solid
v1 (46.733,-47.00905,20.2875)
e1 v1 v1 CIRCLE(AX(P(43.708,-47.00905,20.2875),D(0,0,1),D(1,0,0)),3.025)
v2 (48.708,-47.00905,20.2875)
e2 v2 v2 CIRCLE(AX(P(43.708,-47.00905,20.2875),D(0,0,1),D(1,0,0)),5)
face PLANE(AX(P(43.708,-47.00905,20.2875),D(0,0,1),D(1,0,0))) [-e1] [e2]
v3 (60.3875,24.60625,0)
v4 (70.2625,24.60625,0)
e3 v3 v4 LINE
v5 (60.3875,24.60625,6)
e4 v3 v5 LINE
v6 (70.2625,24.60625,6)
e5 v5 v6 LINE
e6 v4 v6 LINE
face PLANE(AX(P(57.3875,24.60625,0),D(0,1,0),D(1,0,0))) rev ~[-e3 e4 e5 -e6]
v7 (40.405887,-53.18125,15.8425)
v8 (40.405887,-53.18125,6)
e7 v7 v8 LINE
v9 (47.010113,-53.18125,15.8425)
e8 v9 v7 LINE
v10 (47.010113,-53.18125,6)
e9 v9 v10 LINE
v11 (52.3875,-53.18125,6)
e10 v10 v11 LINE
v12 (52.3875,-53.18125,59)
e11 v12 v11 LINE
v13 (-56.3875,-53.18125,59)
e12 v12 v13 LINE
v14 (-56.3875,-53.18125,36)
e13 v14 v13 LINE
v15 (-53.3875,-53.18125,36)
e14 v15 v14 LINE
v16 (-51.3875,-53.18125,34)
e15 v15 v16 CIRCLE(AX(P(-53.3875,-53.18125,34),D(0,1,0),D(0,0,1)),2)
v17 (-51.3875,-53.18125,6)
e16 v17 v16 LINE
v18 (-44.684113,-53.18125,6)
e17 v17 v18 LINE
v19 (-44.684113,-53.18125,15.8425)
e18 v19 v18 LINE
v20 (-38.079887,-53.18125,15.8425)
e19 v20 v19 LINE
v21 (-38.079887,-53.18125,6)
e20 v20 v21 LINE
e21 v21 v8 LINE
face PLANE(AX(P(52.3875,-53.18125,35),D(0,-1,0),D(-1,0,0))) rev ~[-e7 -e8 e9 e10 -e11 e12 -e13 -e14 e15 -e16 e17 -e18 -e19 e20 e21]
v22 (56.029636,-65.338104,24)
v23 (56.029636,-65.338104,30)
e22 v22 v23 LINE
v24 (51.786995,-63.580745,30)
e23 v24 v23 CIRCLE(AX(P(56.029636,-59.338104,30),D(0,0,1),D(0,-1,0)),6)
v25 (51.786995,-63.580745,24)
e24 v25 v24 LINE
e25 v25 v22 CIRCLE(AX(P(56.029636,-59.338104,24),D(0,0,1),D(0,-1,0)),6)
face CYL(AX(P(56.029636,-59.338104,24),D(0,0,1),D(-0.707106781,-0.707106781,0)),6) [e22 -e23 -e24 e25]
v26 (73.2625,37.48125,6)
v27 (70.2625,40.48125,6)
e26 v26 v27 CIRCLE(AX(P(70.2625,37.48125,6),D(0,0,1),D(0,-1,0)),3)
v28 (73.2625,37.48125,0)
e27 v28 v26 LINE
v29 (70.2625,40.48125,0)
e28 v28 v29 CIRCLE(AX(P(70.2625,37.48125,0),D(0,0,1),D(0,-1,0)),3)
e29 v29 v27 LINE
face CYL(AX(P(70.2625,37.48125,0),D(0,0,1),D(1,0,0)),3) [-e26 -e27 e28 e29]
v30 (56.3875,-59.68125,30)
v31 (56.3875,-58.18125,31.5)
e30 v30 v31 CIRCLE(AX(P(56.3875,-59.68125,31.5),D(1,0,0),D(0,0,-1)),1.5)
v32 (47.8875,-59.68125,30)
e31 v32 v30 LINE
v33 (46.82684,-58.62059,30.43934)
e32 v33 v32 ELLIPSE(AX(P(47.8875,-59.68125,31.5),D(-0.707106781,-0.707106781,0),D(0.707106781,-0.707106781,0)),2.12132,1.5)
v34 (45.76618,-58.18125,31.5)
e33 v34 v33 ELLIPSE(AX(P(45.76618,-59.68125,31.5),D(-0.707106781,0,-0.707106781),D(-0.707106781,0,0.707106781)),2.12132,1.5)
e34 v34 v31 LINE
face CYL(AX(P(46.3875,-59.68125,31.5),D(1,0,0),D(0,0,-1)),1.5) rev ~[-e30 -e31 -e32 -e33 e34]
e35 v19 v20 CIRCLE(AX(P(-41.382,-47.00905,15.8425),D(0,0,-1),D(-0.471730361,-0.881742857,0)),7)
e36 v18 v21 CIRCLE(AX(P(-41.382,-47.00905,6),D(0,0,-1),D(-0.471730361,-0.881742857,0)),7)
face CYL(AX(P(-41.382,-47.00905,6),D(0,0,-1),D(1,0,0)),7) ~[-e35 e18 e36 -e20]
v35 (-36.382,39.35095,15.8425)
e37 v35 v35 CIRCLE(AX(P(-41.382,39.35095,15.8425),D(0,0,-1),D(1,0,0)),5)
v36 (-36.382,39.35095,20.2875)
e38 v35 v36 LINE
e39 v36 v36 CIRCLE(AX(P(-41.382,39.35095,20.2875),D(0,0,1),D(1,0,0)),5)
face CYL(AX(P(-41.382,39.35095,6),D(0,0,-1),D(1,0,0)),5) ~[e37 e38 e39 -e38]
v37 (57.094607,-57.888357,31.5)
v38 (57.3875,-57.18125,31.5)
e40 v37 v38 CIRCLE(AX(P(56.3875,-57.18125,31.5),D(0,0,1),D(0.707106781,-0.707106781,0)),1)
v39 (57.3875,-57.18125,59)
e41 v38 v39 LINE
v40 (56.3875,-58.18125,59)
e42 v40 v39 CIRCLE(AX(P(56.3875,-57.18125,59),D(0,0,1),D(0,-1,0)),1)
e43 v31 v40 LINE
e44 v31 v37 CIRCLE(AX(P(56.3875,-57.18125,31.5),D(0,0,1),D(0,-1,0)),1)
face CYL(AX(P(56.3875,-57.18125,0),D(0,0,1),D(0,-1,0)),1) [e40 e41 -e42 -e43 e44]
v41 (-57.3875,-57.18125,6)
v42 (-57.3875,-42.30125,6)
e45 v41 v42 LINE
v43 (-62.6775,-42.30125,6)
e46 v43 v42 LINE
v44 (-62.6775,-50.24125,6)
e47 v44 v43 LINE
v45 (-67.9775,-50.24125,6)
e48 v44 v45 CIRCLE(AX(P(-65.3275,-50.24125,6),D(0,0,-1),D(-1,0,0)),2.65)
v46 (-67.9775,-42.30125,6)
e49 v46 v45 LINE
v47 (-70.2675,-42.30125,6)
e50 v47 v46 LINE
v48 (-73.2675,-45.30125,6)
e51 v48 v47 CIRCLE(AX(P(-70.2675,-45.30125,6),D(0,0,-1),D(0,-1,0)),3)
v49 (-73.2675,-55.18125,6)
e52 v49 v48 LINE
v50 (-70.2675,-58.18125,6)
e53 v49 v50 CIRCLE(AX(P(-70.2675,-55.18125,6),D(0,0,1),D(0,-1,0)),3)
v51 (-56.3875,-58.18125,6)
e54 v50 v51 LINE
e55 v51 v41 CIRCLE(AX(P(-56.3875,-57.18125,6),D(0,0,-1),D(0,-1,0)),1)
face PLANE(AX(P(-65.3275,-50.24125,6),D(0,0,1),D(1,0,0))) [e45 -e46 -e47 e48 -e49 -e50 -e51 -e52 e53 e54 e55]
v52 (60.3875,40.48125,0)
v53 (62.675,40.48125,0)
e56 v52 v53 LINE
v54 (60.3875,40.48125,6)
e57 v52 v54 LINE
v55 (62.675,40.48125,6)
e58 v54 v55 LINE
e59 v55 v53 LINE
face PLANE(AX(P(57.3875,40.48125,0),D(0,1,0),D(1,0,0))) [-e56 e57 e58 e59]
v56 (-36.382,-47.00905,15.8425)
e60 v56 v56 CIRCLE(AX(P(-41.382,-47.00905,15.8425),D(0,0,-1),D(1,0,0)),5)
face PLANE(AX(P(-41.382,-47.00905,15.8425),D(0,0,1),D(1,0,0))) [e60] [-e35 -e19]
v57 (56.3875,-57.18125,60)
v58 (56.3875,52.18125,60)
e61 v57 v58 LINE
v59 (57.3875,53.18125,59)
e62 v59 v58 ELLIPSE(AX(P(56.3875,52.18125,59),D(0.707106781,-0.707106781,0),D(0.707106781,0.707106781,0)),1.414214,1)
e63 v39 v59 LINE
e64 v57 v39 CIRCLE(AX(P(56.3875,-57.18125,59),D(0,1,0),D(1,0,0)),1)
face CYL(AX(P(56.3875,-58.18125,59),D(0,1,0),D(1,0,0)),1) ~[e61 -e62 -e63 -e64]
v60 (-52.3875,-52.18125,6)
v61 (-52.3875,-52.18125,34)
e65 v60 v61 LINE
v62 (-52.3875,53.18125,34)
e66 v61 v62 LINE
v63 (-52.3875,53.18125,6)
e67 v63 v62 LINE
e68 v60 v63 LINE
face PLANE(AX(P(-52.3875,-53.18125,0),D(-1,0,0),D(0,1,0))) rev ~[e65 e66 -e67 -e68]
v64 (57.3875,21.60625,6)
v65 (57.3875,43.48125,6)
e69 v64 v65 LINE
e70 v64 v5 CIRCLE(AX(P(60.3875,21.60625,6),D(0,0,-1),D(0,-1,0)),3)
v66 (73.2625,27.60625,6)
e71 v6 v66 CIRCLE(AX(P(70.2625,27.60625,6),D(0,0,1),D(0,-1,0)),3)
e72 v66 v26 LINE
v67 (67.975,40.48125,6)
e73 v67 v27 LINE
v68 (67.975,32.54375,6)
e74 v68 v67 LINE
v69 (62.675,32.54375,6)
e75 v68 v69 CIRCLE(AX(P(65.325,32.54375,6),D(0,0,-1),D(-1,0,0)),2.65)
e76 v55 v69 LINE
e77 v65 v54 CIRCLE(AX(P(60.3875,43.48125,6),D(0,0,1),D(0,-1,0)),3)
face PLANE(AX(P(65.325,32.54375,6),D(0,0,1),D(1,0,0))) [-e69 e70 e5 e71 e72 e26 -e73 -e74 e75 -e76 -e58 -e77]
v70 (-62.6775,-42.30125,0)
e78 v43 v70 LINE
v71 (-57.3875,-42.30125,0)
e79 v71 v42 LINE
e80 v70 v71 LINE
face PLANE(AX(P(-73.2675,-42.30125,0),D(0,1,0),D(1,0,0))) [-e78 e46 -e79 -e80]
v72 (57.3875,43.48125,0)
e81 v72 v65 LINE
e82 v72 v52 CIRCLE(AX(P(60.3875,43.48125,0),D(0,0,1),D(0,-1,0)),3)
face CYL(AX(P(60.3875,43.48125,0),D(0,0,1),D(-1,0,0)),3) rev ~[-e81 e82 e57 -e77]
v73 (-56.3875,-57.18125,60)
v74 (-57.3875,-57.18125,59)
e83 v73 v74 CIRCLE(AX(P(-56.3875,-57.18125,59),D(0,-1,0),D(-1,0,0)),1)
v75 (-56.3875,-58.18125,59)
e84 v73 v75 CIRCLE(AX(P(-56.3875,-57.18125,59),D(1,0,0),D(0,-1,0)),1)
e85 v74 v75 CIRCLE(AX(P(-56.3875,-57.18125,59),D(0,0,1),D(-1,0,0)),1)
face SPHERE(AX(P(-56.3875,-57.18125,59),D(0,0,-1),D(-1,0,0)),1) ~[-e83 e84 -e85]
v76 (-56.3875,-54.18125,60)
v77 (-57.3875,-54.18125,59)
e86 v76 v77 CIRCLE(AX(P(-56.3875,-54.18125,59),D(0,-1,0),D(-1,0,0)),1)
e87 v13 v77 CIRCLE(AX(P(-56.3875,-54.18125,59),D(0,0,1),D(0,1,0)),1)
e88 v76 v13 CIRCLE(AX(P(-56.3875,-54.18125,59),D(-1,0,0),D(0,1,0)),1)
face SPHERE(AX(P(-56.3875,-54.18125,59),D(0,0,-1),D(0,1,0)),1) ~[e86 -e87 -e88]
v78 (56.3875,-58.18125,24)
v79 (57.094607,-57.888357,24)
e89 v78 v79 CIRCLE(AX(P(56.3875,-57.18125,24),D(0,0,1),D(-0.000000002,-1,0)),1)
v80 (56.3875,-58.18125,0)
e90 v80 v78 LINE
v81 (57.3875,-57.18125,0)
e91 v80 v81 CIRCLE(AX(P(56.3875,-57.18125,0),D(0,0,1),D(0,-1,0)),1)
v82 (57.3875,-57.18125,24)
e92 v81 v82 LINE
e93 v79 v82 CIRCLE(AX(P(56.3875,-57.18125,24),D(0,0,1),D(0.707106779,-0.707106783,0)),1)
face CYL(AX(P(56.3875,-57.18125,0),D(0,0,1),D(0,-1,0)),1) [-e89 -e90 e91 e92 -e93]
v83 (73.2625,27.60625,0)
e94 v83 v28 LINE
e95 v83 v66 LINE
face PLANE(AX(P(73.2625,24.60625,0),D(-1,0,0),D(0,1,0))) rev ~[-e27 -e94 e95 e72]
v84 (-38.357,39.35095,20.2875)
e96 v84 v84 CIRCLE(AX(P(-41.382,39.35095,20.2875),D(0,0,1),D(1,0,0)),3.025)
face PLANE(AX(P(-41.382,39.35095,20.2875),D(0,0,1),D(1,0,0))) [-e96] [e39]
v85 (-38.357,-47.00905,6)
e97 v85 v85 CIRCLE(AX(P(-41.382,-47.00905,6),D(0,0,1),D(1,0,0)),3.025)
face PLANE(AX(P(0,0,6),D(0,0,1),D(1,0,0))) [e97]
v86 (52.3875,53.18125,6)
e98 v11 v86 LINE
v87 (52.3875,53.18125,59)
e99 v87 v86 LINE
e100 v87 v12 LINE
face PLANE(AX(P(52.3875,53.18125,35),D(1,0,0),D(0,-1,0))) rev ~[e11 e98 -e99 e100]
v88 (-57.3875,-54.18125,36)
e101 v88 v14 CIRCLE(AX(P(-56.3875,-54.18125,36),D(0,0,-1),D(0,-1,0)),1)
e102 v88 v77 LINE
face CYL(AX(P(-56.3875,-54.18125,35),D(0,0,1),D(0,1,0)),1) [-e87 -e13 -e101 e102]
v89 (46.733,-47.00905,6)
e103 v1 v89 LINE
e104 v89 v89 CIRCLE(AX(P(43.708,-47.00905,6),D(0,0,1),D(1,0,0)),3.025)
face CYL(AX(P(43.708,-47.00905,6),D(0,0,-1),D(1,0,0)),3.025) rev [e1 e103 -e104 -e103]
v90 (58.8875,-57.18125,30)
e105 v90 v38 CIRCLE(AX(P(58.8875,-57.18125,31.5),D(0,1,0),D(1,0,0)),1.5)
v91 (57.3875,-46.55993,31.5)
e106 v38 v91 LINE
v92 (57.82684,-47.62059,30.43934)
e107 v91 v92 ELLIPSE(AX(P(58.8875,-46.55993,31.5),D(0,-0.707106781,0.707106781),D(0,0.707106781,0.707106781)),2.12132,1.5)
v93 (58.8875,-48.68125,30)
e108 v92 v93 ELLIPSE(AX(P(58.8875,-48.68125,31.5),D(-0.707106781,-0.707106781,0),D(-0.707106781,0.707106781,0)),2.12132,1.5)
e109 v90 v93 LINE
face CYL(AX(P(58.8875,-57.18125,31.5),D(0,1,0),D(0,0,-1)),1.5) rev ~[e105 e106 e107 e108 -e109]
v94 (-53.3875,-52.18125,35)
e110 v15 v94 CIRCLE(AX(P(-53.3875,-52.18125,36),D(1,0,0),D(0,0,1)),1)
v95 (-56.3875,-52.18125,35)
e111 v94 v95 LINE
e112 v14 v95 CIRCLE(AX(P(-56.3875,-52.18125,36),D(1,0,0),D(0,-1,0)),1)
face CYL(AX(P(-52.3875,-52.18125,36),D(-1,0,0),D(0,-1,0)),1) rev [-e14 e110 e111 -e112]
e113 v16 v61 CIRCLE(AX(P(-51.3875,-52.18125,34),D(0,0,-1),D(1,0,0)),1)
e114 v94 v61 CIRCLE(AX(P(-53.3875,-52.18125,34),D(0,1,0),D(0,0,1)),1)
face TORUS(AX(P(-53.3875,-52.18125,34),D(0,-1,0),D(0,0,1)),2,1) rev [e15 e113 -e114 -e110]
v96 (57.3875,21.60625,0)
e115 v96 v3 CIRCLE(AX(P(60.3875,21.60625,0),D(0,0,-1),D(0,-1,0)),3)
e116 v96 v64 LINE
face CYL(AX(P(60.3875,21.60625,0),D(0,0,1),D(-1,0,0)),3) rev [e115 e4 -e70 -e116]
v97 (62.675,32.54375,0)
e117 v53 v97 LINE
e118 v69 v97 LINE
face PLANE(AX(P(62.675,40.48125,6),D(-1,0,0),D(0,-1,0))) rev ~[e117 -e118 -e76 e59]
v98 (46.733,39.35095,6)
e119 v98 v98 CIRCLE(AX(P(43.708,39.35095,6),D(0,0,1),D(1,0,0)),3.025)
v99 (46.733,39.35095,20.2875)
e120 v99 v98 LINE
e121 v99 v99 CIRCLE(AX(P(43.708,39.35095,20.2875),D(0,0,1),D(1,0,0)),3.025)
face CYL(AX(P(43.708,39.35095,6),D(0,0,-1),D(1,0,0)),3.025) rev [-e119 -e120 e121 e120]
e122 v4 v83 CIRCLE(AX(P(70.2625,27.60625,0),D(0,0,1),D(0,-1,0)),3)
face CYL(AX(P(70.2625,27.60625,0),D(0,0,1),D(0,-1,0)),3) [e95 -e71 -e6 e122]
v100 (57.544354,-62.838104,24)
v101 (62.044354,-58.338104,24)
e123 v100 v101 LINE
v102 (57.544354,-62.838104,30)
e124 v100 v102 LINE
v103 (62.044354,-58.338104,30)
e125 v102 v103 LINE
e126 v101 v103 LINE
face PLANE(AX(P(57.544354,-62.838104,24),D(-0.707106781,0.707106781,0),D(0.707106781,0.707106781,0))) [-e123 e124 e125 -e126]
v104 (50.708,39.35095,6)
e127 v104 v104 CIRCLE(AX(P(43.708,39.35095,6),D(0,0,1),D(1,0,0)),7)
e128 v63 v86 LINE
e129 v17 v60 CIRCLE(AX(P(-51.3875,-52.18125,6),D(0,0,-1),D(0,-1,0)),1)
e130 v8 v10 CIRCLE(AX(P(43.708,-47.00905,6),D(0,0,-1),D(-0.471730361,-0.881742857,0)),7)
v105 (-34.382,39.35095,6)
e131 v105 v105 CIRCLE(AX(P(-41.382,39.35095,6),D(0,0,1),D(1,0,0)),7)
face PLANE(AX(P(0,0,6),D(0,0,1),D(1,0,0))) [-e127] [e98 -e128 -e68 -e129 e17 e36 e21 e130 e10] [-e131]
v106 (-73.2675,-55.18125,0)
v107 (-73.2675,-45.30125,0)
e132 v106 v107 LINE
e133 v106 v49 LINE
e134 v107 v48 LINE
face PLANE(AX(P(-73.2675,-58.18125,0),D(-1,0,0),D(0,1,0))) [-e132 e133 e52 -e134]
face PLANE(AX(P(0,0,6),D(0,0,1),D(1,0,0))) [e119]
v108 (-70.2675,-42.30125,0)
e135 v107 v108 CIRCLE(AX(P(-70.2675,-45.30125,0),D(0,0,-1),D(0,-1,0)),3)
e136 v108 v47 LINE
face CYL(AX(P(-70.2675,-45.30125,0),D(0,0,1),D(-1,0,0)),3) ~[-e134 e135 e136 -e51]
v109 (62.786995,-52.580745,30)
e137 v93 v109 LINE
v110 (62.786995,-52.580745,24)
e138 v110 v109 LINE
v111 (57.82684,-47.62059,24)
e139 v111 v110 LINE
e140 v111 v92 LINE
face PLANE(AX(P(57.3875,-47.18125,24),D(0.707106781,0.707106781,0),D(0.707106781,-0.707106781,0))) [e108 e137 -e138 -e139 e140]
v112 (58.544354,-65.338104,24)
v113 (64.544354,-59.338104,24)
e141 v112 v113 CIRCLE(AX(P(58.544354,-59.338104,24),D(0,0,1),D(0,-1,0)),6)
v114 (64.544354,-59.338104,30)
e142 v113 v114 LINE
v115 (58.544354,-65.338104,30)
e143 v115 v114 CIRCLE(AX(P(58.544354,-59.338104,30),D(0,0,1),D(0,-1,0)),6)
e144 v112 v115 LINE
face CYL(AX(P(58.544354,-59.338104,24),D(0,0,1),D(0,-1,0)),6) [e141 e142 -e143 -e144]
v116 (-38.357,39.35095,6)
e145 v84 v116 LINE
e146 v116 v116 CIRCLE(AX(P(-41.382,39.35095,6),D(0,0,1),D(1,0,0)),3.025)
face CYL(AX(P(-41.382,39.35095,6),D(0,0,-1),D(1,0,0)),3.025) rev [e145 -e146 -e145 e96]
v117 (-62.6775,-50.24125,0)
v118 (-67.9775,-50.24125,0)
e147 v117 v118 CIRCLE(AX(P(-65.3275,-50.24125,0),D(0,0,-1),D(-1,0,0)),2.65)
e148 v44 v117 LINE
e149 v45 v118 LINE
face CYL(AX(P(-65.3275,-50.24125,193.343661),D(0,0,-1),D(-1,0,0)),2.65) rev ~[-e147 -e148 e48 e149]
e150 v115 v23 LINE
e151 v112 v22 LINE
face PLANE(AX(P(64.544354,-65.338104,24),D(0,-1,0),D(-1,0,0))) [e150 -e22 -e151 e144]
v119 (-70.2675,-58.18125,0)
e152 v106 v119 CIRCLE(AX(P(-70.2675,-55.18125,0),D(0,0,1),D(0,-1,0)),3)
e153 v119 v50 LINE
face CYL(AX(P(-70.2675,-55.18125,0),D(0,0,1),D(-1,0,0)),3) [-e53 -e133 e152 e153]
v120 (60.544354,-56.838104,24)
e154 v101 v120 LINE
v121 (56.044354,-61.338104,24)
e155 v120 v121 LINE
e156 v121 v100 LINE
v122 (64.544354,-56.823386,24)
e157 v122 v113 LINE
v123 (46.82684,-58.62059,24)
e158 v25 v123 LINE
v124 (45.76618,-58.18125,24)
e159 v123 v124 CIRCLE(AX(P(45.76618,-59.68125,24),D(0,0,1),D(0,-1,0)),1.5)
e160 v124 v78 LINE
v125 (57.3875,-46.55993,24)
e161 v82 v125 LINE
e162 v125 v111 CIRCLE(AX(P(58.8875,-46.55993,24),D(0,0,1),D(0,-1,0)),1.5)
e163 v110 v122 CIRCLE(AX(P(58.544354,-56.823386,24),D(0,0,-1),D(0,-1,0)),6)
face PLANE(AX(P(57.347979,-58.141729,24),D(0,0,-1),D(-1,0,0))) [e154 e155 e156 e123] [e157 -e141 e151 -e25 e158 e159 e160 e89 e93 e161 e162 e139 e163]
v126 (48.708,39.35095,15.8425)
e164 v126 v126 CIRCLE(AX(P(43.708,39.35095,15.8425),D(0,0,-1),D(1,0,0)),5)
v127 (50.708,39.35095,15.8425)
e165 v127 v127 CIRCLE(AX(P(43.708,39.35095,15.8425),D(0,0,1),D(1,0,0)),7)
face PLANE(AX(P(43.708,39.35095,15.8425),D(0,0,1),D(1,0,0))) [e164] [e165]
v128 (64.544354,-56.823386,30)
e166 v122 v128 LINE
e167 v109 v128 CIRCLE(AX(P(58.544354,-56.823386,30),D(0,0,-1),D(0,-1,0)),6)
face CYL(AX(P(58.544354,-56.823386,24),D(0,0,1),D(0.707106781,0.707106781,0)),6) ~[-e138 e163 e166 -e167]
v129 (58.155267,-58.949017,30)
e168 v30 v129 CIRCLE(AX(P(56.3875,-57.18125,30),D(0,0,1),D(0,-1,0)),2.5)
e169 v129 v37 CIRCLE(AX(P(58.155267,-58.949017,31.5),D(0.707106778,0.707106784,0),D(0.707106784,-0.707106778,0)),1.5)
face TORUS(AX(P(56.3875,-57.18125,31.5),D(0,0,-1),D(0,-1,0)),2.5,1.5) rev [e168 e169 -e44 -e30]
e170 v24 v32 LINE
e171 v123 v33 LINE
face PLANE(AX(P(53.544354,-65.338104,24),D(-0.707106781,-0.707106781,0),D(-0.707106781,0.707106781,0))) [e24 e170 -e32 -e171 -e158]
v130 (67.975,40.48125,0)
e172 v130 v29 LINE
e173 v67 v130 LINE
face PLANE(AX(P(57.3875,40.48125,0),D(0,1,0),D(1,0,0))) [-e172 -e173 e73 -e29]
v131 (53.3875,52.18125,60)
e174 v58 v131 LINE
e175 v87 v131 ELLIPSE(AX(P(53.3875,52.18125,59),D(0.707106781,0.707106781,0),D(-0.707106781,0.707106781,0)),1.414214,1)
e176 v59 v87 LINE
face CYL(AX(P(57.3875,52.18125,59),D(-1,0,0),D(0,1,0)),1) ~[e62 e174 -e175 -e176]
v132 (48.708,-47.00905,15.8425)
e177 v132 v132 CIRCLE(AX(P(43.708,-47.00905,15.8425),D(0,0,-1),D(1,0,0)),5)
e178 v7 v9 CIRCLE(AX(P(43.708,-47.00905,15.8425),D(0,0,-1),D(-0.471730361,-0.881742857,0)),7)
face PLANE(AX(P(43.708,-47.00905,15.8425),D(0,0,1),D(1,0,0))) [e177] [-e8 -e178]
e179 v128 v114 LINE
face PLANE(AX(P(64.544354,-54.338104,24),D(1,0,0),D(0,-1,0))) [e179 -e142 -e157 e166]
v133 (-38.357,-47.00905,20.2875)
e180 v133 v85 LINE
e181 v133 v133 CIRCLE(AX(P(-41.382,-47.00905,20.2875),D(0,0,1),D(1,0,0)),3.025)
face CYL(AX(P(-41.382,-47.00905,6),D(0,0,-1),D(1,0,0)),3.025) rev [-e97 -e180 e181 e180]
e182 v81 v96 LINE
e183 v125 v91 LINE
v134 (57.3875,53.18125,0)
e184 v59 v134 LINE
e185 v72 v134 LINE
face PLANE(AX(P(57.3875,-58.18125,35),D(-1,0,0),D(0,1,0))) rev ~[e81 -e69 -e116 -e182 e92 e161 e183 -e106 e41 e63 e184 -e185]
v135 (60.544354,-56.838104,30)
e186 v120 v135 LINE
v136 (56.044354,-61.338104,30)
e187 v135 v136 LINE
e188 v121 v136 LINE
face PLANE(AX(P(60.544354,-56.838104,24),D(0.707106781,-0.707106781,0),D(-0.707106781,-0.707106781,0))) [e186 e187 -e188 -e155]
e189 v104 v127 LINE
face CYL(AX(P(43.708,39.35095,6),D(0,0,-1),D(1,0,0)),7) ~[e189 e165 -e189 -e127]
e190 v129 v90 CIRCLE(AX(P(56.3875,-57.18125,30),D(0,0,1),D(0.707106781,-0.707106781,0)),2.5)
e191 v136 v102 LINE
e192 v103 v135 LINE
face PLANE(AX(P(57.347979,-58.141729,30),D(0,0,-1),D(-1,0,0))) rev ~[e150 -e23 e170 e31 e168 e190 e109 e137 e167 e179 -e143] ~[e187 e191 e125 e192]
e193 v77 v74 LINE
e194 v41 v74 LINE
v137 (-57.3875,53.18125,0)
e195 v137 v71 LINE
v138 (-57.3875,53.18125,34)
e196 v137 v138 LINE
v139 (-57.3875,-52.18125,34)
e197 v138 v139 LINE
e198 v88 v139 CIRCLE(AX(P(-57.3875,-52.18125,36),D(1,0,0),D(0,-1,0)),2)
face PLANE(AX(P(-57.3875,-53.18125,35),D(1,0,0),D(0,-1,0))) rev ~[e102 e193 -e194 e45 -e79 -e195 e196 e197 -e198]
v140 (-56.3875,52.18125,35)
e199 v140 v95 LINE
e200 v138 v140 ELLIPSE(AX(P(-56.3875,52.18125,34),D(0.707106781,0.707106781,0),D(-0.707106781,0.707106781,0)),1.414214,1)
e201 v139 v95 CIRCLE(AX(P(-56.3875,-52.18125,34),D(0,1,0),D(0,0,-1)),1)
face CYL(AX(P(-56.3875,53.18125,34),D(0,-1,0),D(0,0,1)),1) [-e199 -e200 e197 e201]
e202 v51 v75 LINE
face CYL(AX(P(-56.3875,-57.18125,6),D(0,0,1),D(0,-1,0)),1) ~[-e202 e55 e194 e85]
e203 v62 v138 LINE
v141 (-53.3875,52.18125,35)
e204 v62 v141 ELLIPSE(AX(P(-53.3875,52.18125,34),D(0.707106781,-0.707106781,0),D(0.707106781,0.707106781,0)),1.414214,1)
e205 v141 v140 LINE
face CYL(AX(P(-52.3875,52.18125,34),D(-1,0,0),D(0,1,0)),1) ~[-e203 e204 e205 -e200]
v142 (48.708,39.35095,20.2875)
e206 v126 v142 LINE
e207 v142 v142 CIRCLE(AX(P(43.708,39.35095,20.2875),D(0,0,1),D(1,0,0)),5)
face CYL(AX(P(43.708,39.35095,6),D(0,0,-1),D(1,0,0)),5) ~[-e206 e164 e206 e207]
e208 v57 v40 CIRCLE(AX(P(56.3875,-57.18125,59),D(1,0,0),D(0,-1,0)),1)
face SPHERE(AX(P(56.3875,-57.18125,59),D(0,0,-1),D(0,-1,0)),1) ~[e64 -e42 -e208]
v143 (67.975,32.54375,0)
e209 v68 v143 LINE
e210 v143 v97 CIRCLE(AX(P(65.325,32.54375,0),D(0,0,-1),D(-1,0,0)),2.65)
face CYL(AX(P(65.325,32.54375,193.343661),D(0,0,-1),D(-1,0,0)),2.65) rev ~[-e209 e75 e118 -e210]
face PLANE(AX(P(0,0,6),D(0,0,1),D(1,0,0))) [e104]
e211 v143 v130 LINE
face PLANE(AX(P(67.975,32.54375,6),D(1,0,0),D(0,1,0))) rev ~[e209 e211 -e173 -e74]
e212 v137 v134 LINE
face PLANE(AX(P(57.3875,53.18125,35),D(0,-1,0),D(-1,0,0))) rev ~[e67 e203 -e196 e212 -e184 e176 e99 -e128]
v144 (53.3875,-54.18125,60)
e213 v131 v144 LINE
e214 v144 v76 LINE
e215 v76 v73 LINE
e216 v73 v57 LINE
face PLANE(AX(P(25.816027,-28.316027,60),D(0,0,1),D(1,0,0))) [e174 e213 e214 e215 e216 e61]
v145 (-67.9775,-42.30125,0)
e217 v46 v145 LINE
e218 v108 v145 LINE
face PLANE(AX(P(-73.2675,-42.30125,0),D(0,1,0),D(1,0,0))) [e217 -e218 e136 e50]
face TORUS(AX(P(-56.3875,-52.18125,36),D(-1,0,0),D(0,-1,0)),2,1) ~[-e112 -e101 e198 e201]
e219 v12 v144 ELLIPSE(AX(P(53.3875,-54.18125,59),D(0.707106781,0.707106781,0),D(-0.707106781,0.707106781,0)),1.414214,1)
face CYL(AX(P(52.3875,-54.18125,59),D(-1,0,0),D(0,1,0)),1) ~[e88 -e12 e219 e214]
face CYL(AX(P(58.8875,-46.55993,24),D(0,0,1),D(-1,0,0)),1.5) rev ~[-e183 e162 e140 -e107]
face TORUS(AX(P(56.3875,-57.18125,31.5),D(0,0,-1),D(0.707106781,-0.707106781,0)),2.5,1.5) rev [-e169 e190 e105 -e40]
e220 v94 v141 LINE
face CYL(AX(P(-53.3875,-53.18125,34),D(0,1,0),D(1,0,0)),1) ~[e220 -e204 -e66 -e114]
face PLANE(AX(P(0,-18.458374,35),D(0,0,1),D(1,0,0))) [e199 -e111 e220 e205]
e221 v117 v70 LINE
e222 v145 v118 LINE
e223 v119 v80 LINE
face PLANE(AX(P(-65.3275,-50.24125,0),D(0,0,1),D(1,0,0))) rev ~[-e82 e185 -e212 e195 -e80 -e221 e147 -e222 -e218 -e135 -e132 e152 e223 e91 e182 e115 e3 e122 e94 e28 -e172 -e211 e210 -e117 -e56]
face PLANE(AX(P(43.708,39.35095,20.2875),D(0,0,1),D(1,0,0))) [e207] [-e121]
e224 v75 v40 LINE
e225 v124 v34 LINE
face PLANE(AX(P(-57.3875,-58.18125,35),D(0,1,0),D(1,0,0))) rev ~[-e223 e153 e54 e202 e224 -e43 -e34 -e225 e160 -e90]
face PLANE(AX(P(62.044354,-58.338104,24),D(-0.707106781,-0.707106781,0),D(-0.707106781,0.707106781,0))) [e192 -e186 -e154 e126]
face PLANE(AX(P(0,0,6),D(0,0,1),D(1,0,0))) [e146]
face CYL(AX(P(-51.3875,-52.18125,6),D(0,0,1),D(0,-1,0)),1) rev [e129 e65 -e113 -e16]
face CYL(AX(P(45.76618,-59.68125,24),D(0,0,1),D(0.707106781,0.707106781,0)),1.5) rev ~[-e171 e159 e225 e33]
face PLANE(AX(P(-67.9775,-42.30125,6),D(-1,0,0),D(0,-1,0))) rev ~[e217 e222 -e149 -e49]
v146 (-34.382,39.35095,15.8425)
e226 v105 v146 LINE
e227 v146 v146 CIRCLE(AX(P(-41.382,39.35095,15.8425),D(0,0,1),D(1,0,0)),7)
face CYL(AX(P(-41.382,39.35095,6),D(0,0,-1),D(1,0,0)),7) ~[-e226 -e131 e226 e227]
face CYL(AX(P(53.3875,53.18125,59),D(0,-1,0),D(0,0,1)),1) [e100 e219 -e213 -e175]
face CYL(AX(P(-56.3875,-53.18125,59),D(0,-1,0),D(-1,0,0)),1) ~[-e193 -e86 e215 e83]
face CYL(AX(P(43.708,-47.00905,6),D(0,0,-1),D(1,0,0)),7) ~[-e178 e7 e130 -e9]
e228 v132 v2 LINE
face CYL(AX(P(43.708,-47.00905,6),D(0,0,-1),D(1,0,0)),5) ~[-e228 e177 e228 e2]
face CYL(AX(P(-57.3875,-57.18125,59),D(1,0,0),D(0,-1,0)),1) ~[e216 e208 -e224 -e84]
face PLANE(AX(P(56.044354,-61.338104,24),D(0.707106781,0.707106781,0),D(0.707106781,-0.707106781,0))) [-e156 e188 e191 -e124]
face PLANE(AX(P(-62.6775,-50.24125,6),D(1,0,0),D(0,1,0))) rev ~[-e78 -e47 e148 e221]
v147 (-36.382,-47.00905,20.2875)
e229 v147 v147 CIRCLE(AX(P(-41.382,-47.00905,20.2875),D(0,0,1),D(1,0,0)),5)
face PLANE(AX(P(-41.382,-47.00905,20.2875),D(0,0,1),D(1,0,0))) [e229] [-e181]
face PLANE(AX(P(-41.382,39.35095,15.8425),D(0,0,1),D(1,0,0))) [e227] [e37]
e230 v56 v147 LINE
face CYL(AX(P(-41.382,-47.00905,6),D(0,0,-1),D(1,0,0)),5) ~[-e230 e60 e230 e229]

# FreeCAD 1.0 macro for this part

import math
import FreeCAD as App
import Part
import Sketcher
Q = App.Units.Quantity


def edges_at(feature, points):
    """Names of the edges that pass closest to the given points."""
    edges = feature.Shape.Edges
    near = lambda p: min(range(len(edges)), key=lambda i: edges[i].distToShape(Part.Vertex(*p))[0])
    return sorted({f"Edge{near(p) + 1}" for p in points})


def add_polygon(sketch, points):
    """Adds a closed chain of lines whose ends are joined by coincident constraints."""
    first, n = sketch.GeometryCount, len(points)
    for a, b in zip(points, points[1:] + points[:1]):
        sketch.addGeometry(Part.LineSegment(App.Vector(*a, 0), App.Vector(*b, 0)), False)
    for i in range(n):
        sketch.addConstraint(Sketcher.Constraint("Coincident", first + i, 2, first + (i + 1) % n, 1))

doc = App.newDocument("Part")
params = doc.addObject("Spreadsheet::Sheet", "Params")
for row, (alias, value) in enumerate([
    ("pad1_length", "6 mm"),
    ("sketch2_width", "5 mm"),
    ("pad2_length", "35 mm"),
    ("sketch3_diameter", "10 mm"),
    ("sketch3_diameter2", "6.05 mm"),
    ("pad3_length", "14.2875 mm"),
    ("sketch4_diameter", "14 mm"),
    ("sketch4_diameter2", "6.05 mm"),
    ("pad4_length", "9.8425 mm"),
    ("sketch5_width", "15.88 mm"),
    ("pad5_length", "6 mm"),
    ("sketch6_diameter", "5.3 mm"),
    ("hole_diameter", "5.3 mm"),
    ("fillet_radius", "3 mm"),
    ("sketch7_width", "5 mm"),
    ("pad6_length", "25 mm"),
    ("fillet2_radius", "1 mm"),
    ("sketch8_radius", "1 mm"),
    ("sketch8_width", "11 mm"),
    ("pad7_length", "6 mm"),
    ("fillet3_radius", "6 mm"),
    ("fillet4_radius", "1.5 mm"),
    ("sketch9_radius", "2.65 mm"),
    ("sketch9_height", "7.94 mm"),
], start=1):
    params.set(f"A{row}", alias)
    params.set(f"B{row}", "=" + value)
    params.setAlias(f"B{row}", alias)

body = doc.addObject("PartDesign::Body", "Body")

# Sketch on XY plane
sketch1 = body.newObject("Sketcher::SketchObject", "Sketch")
sketch1.AttachmentSupport = (doc.getObject("XY_Plane"), [""])
sketch1.MapMode = "FlatFace"
add_polygon(sketch1, [(-52.3875, 53.18125), (-52.3875, -53.18125), (52.3875, -53.18125), (52.3875, 53.18125)])  # lines 0-3
sketch1.addConstraint(Sketcher.Constraint("Vertical", 0))
sketch1.addConstraint(Sketcher.Constraint("Horizontal", 1))
sketch1.addConstraint(Sketcher.Constraint("Vertical", 2))
sketch1.addConstraint(Sketcher.Constraint("Horizontal", 3))
sketch1.addConstraint(Sketcher.Constraint("Symmetric", 0, 2, 2, 2, -1, 1))
sketch1.addConstraint(Sketcher.Constraint("DistanceX", 1, 1, 1, 2, Q("104.775 mm")))
sketch1.addConstraint(Sketcher.Constraint("DistanceY", 0, 2, 0, 1, Q("106.3625 mm")))
pad1 = body.newObject("PartDesign::Pad", "Pad")
pad1.Profile = sketch1
pad1.setExpression("Length", "Params.pad1_length")

# Sketch on XY plane
sketch2 = body.newObject("Sketcher::SketchObject", "Sketch001")
sketch2.AttachmentSupport = (doc.getObject("XY_Plane"), [""])
sketch2.MapMode = "FlatFace"
add_polygon(sketch2, [(-57.3875, -58.18125), (57.3875, -58.18125), (57.3875, 53.18125), (52.3875, 53.18125), (52.3875, -53.18125), (-52.3875, -53.18125), (-52.3875, 53.18125), (-57.3875, 53.18125)])  # lines 0-7
sketch2.addConstraint(Sketcher.Constraint("Horizontal", 0))
sketch2.addConstraint(Sketcher.Constraint("Vertical", 1))
sketch2.addConstraint(Sketcher.Constraint("Horizontal", 2))
sketch2.addConstraint(Sketcher.Constraint("Vertical", 3))
sketch2.addConstraint(Sketcher.Constraint("Horizontal", 4))
sketch2.addConstraint(Sketcher.Constraint("Vertical", 5))
sketch2.addConstraint(Sketcher.Constraint("Horizontal", 6))
sketch2.addConstraint(Sketcher.Constraint("Vertical", 7))
sketch2.addConstraint(Sketcher.Constraint("Symmetric", 2, 2, 4, 2, -1, 1))
sketch2.addConstraint(Sketcher.Constraint("Symmetric", 1, 2, 6, 2, -2))
sketch2.addConstraint(Sketcher.Constraint("DistanceX", 2, 2, 2, 1, Q("5 mm")))
sketch2.addConstraint(Sketcher.Constraint("DistanceY", 0, 2, 3, 2, Q("5 mm")))
sketch2.addConstraint(Sketcher.Constraint("DistanceX", 0, 1, 0, 2, Q("114.775 mm")))
sketch2.addConstraint(Sketcher.Constraint("DistanceY", 1, 1, 1, 2, Q("111.3625 mm")))
sketch2.setExpression("Constraints[18]", "Params.sketch2_width")
pad2 = body.newObject("PartDesign::Pad", "Pad001")
pad2.Profile = sketch2
pad2.setExpression("Length", "Params.pad2_length")

# Sketch on XY plane
sketch3 = body.newObject("Sketcher::SketchObject", "Sketch002")
sketch3.AttachmentSupport = (doc.getObject("XY_Plane"), [""])
sketch3.MapMode = "FlatFace"
sketch3.AttachmentOffset = App.Placement(App.Vector(0, 0, 6), App.Rotation())
sketch3.addGeometry(Part.Circle(App.Vector(43.708, 39.35095, 0), App.Vector(0, 0, 1), 5), False)
sketch3.addGeometry(Part.Circle(App.Vector(43.708, 39.35095, 0), App.Vector(0, 0, 1), 3.025), False)
sketch3.addGeometry(Part.Circle(App.Vector(-41.382, 39.35095, 0), App.Vector(0, 0, 1), 5), False)
sketch3.addGeometry(Part.Circle(App.Vector(-41.382, 39.35095, 0), App.Vector(0, 0, 1), 3.025), False)
sketch3.addGeometry(Part.Circle(App.Vector(-41.382, -47.00905, 0), App.Vector(0, 0, 1), 5), False)
sketch3.addGeometry(Part.Circle(App.Vector(-41.382, -47.00905, 0), App.Vector(0, 0, 1), 3.025), False)
sketch3.addGeometry(Part.Circle(App.Vector(43.708, -47.00905, 0), App.Vector(0, 0, 1), 5), False)
sketch3.addGeometry(Part.Circle(App.Vector(43.708, -47.00905, 0), App.Vector(0, 0, 1), 3.025), False)
sketch3.addConstraint(Sketcher.Constraint("Coincident", 1, 3, 0, 3))
sketch3.addConstraint(Sketcher.Constraint("Coincident", 3, 3, 2, 3))
sketch3.addConstraint(Sketcher.Constraint("Coincident", 5, 3, 4, 3))
sketch3.addConstraint(Sketcher.Constraint("Coincident", 7, 3, 6, 3))
sketch3.addConstraint(Sketcher.Constraint("Equal", 0, 2))
sketch3.addConstraint(Sketcher.Constraint("Equal", 1, 3))
sketch3.addConstraint(Sketcher.Constraint("Equal", 2, 4))
sketch3.addConstraint(Sketcher.Constraint("Equal", 3, 5))
sketch3.addConstraint(Sketcher.Constraint("Equal", 4, 6))
sketch3.addConstraint(Sketcher.Constraint("Equal", 5, 7))
sketch3.addConstraint(Sketcher.Constraint("Horizontal", 1, 3, 2, 3))
sketch3.addConstraint(Sketcher.Constraint("Horizontal", 5, 3, 6, 3))
sketch3.addConstraint(Sketcher.Constraint("Vertical", 3, 3, 4, 3))
sketch3.addConstraint(Sketcher.Constraint("Vertical", 1, 3, 6, 3))
sketch3.addConstraint(Sketcher.Constraint("Diameter", 0, Q("10 mm")))
sketch3.addConstraint(Sketcher.Constraint("Diameter", 1, Q("6.05 mm")))
sketch3.addConstraint(Sketcher.Constraint("DistanceX", 2, 3, 0, 3, Q("85.09 mm")))
sketch3.addConstraint(Sketcher.Constraint("DistanceY", 4, 3, 2, 3, Q("86.36 mm")))
sketch3.addConstraint(Sketcher.Constraint("DistanceX", -1, 1, 0, 3, Q("43.708 mm")))
sketch3.addConstraint(Sketcher.Constraint("DistanceY", -1, 1, 0, 3, Q("39.35095 mm")))
sketch3.setExpression("Constraints[14]", "Params.sketch3_diameter")
sketch3.setExpression("Constraints[15]", "Params.sketch3_diameter2")
pad3 = body.newObject("PartDesign::Pad", "Pad002")
pad3.Profile = sketch3
pad3.setExpression("Length", "Params.pad3_length")

# Sketch on XY plane
sketch4 = body.newObject("Sketcher::SketchObject", "Sketch003")
sketch4.AttachmentSupport = (doc.getObject("XY_Plane"), [""])
sketch4.MapMode = "FlatFace"
sketch4.AttachmentOffset = App.Placement(App.Vector(0, 0, 6), App.Rotation())
sketch4.addGeometry(Part.Circle(App.Vector(43.708, 39.35095, 0), App.Vector(0, 0, 1), 7), False)
sketch4.addGeometry(Part.Circle(App.Vector(43.708, 39.35095, 0), App.Vector(0, 0, 1), 3.025), False)
sketch4.addGeometry(Part.Circle(App.Vector(-41.382, 39.35095, 0), App.Vector(0, 0, 1), 7), False)
sketch4.addGeometry(Part.Circle(App.Vector(-41.382, 39.35095, 0), App.Vector(0, 0, 1), 3.025), False)
sketch4.addGeometry(Part.Circle(App.Vector(-41.382, -47.00905, 0), App.Vector(0, 0, 1), 7), False)
sketch4.addGeometry(Part.Circle(App.Vector(-41.382, -47.00905, 0), App.Vector(0, 0, 1), 3.025), False)
sketch4.addGeometry(Part.Circle(App.Vector(43.708, -47.00905, 0), App.Vector(0, 0, 1), 7), False)
sketch4.addGeometry(Part.Circle(App.Vector(43.708, -47.00905, 0), App.Vector(0, 0, 1), 3.025), False)
sketch4.addConstraint(Sketcher.Constraint("Coincident", 1, 3, 0, 3))
sketch4.addConstraint(Sketcher.Constraint("Coincident", 3, 3, 2, 3))
sketch4.addConstraint(Sketcher.Constraint("Coincident", 5, 3, 4, 3))
sketch4.addConstraint(Sketcher.Constraint("Coincident", 7, 3, 6, 3))
sketch4.addConstraint(Sketcher.Constraint("Equal", 0, 2))
sketch4.addConstraint(Sketcher.Constraint("Equal", 1, 3))
sketch4.addConstraint(Sketcher.Constraint("Equal", 2, 4))
sketch4.addConstraint(Sketcher.Constraint("Equal", 3, 5))
sketch4.addConstraint(Sketcher.Constraint("Equal", 4, 6))
sketch4.addConstraint(Sketcher.Constraint("Equal", 5, 7))
sketch4.addConstraint(Sketcher.Constraint("Horizontal", 1, 3, 2, 3))
sketch4.addConstraint(Sketcher.Constraint("Horizontal", 5, 3, 6, 3))
sketch4.addConstraint(Sketcher.Constraint("Vertical", 3, 3, 4, 3))
sketch4.addConstraint(Sketcher.Constraint("Vertical", 1, 3, 6, 3))
sketch4.addConstraint(Sketcher.Constraint("Diameter", 0, Q("14 mm")))
sketch4.addConstraint(Sketcher.Constraint("Diameter", 1, Q("6.05 mm")))
sketch4.addConstraint(Sketcher.Constraint("DistanceX", 2, 3, 0, 3, Q("85.09 mm")))
sketch4.addConstraint(Sketcher.Constraint("DistanceY", 4, 3, 2, 3, Q("86.36 mm")))
sketch4.addConstraint(Sketcher.Constraint("DistanceX", -1, 1, 0, 3, Q("43.708 mm")))
sketch4.addConstraint(Sketcher.Constraint("DistanceY", -1, 1, 0, 3, Q("39.35095 mm")))
sketch4.setExpression("Constraints[14]", "Params.sketch4_diameter")
sketch4.setExpression("Constraints[15]", "Params.sketch4_diameter2")
pad4 = body.newObject("PartDesign::Pad", "Pad003")
pad4.Profile = sketch4
pad4.setExpression("Length", "Params.pad4_length")

# Sketch on XY plane
sketch5 = body.newObject("Sketcher::SketchObject", "Sketch004")
sketch5.AttachmentSupport = (doc.getObject("XY_Plane"), [""])
sketch5.MapMode = "FlatFace"
add_polygon(sketch5, [(57.3875, 40.48125), (57.3875, 24.60625), (73.2625, 24.60625), (73.2625, 40.48125)])  # lines 0-3
add_polygon(sketch5, [(-73.2675, -42.30125), (-73.2675, -58.18125), (-57.3875, -58.18125), (-57.3875, -42.30125)])  # lines 4-7
sketch5.addConstraint(Sketcher.Constraint("Vertical", 0))
sketch5.addConstraint(Sketcher.Constraint("Horizontal", 1))
sketch5.addConstraint(Sketcher.Constraint("Vertical", 2))
sketch5.addConstraint(Sketcher.Constraint("Horizontal", 3))
sketch5.addConstraint(Sketcher.Constraint("Vertical", 4))
sketch5.addConstraint(Sketcher.Constraint("Horizontal", 5))
sketch5.addConstraint(Sketcher.Constraint("Vertical", 6))
sketch5.addConstraint(Sketcher.Constraint("Horizontal", 7))
sketch5.addConstraint(Sketcher.Constraint("Equal", 3, 0))
sketch5.addConstraint(Sketcher.Constraint("Equal", 7, 4))
sketch5.addConstraint(Sketcher.Constraint("DistanceX", 5, 1, 5, 2, Q("15.88 mm")))
sketch5.addConstraint(Sketcher.Constraint("DistanceX", 1, 1, 1, 2, Q("15.875 mm")))
sketch5.addConstraint(Sketcher.Constraint("DistanceX", 4, 2, 1, 2, Q("146.53 mm")))
sketch5.addConstraint(Sketcher.Constraint("DistanceX", -1, 1, 0, 2, Q("57.3875 mm")))
sketch5.addConstraint(Sketcher.Constraint("DistanceY", 4, 2, 0, 2, Q("82.7875 mm")))
sketch5.addConstraint(Sketcher.Constraint("DistanceY", -1, 1, 0, 2, Q("24.60625 mm")))
sketch5.setExpression("Constraints[18]", "Params.sketch5_width")
pad5 = body.newObject("PartDesign::Pad", "Pad004")
pad5.Profile = sketch5
pad5.setExpression("Length", "Params.pad5_length")

# Sketch on XY plane
sketch6 = body.newObject("Sketcher::SketchObject", "Sketch005")
sketch6.AttachmentSupport = (doc.getObject("XY_Plane"), [""])
sketch6.MapMode = "FlatFace"
sketch6.AttachmentOffset = App.Placement(App.Vector(0, 0, 6), App.Rotation())
sketch6.addGeometry(Part.Circle(App.Vector(65.325, 32.54375, 0), App.Vector(0, 0, 1), 2.65), False)
sketch6.addGeometry(Part.Circle(App.Vector(-65.3275, -50.24125, 0), App.Vector(0, 0, 1), 2.65), False)
sketch6.addConstraint(Sketcher.Constraint("Equal", 0, 1))
sketch6.addConstraint(Sketcher.Constraint("Diameter", 0, Q("5.3 mm")))
sketch6.addConstraint(Sketcher.Constraint("DistanceX", -1, 1, 0, 3, Q("65.325 mm")))
sketch6.addConstraint(Sketcher.Constraint("DistanceY", 1, 3, 0, 3, Q("82.785 mm")))
sketch6.addConstraint(Sketcher.Constraint("DistanceX", 1, 3, -1, 1, Q("65.3275 mm")))
sketch6.addConstraint(Sketcher.Constraint("DistanceY", -1, 1, 0, 3, Q("32.54375 mm")))
sketch6.setExpression("Constraints[1]", "Params.sketch6_diameter")
doc.recompute()
hole = body.newObject("PartDesign::Hole", "Hole")
hole.Profile = sketch6
hole.ThreadType = "None"
hole.setExpression("Diameter", "Params.hole_diameter")
hole.DepthType = "ThroughAll"
doc.recompute()

fillet = body.newObject("PartDesign::Fillet", "Fillet")
fillet.Base = (hole, edges_at(hole, [
    (-73.267, -42.301, 3),
    (-73.267, -58.181, 3),
    (73.263, 24.606, 3),
    (73.263, 40.481, 3),
    (57.388, 40.481, 3),
    (57.388, 24.606, 3),
]))
fillet.setExpression("Radius", "Params.fillet_radius")

# Sketch on XY plane
sketch7 = body.newObject("Sketcher::SketchObject", "Sketch006")
sketch7.AttachmentSupport = (doc.getObject("XY_Plane"), [""])
sketch7.MapMode = "FlatFace"
sketch7.AttachmentOffset = App.Placement(App.Vector(0, 0, 35), App.Rotation())
add_polygon(sketch7, [(52.3875, -53.18125), (-57.3875, -53.18125), (-57.3875, -58.18125), (57.3875, -58.18125), (57.3875, 53.18125), (52.3875, 53.18125)])  # lines 0-5
sketch7.addConstraint(Sketcher.Constraint("Horizontal", 0))
sketch7.addConstraint(Sketcher.Constraint("Vertical", 1))
sketch7.addConstraint(Sketcher.Constraint("Horizontal", 2))
sketch7.addConstraint(Sketcher.Constraint("Vertical", 3))
sketch7.addConstraint(Sketcher.Constraint("Horizontal", 4))
sketch7.addConstraint(Sketcher.Constraint("Vertical", 5))
sketch7.addConstraint(Sketcher.Constraint("Symmetric", 0, 2, 3, 2, -1, 1))
sketch7.addConstraint(Sketcher.Constraint("Equal", 4, 1))
sketch7.addConstraint(Sketcher.Constraint("DistanceX", 4, 2, 4, 1, Q("5 mm")))
sketch7.addConstraint(Sketcher.Constraint("DistanceX", 0, 2, 0, 1, Q("109.775 mm")))
sketch7.addConstraint(Sketcher.Constraint("DistanceY", 3, 1, 3, 2, Q("111.3625 mm")))
sketch7.setExpression("Constraints[14]", "Params.sketch7_width")
pad6 = body.newObject("PartDesign::Pad", "Pad005")
pad6.Profile = sketch7
pad6.setExpression("Length", "Params.pad6_length")
doc.recompute()

fillet2 = body.newObject("PartDesign::Fillet", "Fillet001")
fillet2.Base = (pad6, edges_at(pad6, [
    (-52.388, -53.181, 20.5),
    (-57.388, -58.181, 33),
    (57.388, -58.181, 30),
    (-52.388, 0, 35),
    (-54.888, 53.181, 35),
    (-57.388, 0, 35),
    (-54.888, -53.181, 35),
    (-57.388, -53.181, 47.5),
    (-2.5, -53.181, 60),
    (-57.388, -55.681, 60),
    (0, -58.181, 60),
    (57.388, -2.5, 60),
    (54.888, 53.181, 60),
    (52.388, 0, 60),
]))
fillet2.setExpression("Radius", "Params.fillet2_radius")

# Sketch on XY plane
sketch8 = body.newObject("Sketcher::SketchObject", "Sketch007")
sketch8.AttachmentSupport = (doc.getObject("XY_Plane"), [""])
sketch8.MapMode = "FlatFace"
sketch8.AttachmentOffset = App.Placement(App.Vector(0, 0, 24), App.Rotation())
sketch8.addGeometry(Part.ArcOfCircle(Part.Circle(App.Vector(56.3875, -57.18125, 0), App.Vector(0, 0, 1), 1), math.radians(-90), math.radians(-45)), False)  # 0
sketch8.addGeometry(Part.ArcOfCircle(Part.Circle(App.Vector(56.3875, -57.18125, 0), App.Vector(0, 0, 1), 1), math.radians(-45), math.radians(0)), False)  # 1
sketch8.addGeometry(Part.LineSegment(App.Vector(57.3875, -57.18125, 0), App.Vector(57.3875, -47.18125, 0)), False)  # 2
sketch8.addGeometry(Part.LineSegment(App.Vector(57.3875, -47.18125, 0), App.Vector(64.544354, -54.338104, 0)), False)  # 3
sketch8.addGeometry(Part.LineSegment(App.Vector(64.544354, -54.338104, 0), App.Vector(64.544354, -65.338104, 0)), False)  # 4
sketch8.addGeometry(Part.LineSegment(App.Vector(64.544354, -65.338104, 0), App.Vector(53.544354, -65.338104, 0)), False)  # 5
sketch8.addGeometry(Part.LineSegment(App.Vector(53.544354, -65.338104, 0), App.Vector(46.3875, -58.18125, 0)), False)  # 6
sketch8.addGeometry(Part.LineSegment(App.Vector(46.3875, -58.18125, 0), App.Vector(56.3875, -58.18125, 0)), False)  # 7
add_polygon(sketch8, [(62.044354, -58.338104), (60.544354, -56.838104), (56.044354, -61.338104), (57.544354, -62.838104)])  # lines 8-11
sketch8.addConstraint(Sketcher.Constraint("Tangent", 0, 2, 1, 1))
sketch8.addConstraint(Sketcher.Constraint("Tangent", 1, 2, 2, 1))
sketch8.addConstraint(Sketcher.Constraint("Coincident", 2, 2, 3, 1))
sketch8.addConstraint(Sketcher.Constraint("Coincident", 3, 2, 4, 1))
sketch8.addConstraint(Sketcher.Constraint("Coincident", 4, 2, 5, 1))
sketch8.addConstraint(Sketcher.Constraint("Coincident", 5, 2, 6, 1))
sketch8.addConstraint(Sketcher.Constraint("Coincident", 6, 2, 7, 1))
sketch8.addConstraint(Sketcher.Constraint("Tangent", 7, 2, 0, 1))
sketch8.addConstraint(Sketcher.Constraint("Vertical", 2))
sketch8.addConstraint(Sketcher.Constraint("Vertical", 4))
sketch8.addConstraint(Sketcher.Constraint("Horizontal", 5))
sketch8.addConstraint(Sketcher.Constraint("Horizontal", 7))
sketch8.addConstraint(Sketcher.Constraint("Equal", 0, 1))
sketch8.addConstraint(Sketcher.Constraint("Parallel", 3, 6))
sketch8.addConstraint(Sketcher.Constraint("Parallel", 6, 8))
sketch8.addConstraint(Sketcher.Constraint("Perpendicular", 8, 9))
sketch8.addConstraint(Sketcher.Constraint("Perpendicular", 9, 10))
sketch8.addConstraint(Sketcher.Constraint("Perpendicular", 10, 11))
sketch8.addConstraint(Sketcher.Constraint("Equal", 7, 2))
sketch8.addConstraint(Sketcher.Constraint("Equal", 5, 4))
sketch8.addConstraint(Sketcher.Constraint("Radius", 0, Q("1 mm")))
sketch8.addConstraint(Sketcher.Constraint("DistanceX", 5, 2, 5, 1, Q("11 mm")))
sketch8.addConstraint(Sketcher.Constraint("Angle", 3, Q("-45 deg")))
sketch8.addConstraint(Sketcher.Constraint("DistanceX", 5, 2, 10, 2, Q("4 mm")))
sketch8.addConstraint(Sketcher.Constraint("DistanceY", 11, 2, 3, 2, Q("4 mm")))
sketch8.addConstraint(Sketcher.Constraint("DistanceX", 9, 2, 10, 2, Q("1.5 mm")))
sketch8.addConstraint(Sketcher.Constraint("DistanceY", 5, 2, 10, 2, Q("2.5 mm")))
sketch8.addConstraint(Sketcher.Constraint("DistanceX", -1, 1, 0, 3, Q("56.3875 mm")))
sketch8.addConstraint(Sketcher.Constraint("Distance", 3, Q("10.12132 mm")))
sketch8.addConstraint(Sketcher.Constraint("DistanceY", 0, 3, -1, 1, Q("57.18125 mm")))
sketch8.addConstraint(Sketcher.Constraint("DistanceX", -1, 1, 0, 2, Q("57.094607 mm")))
sketch8.setExpression("Constraints[24]", "Params.sketch8_radius")
sketch8.setExpression("Constraints[25]", "Params.sketch8_width")
pad7 = body.newObject("PartDesign::Pad", "Pad006")
pad7.Profile = sketch8
pad7.setExpression("Length", "Params.pad7_length")
doc.recompute()

fillet3 = body.newObject("PartDesign::Fillet", "Fillet002")
fillet3.Base = (pad7, edges_at(pad7, [(64.544, -54.338, 27), (64.544, -65.338, 27), (53.544, -65.338, 27)]))
fillet3.setExpression("Radius", "Params.fillet3_radius")
doc.recompute()

fillet4 = body.newObject("PartDesign::Fillet", "Fillet003")
fillet4.Base = (fillet3, edges_at(fillet3, [
    (57.388, -52.181, 30),
    (57.388, -47.181, 27),
    (51.388, -58.181, 30),
    (46.388, -58.181, 27),
    (56.77, -58.105, 30),
]))
fillet4.setExpression("Radius", "Params.fillet4_radius")

# Sketch on XY plane
sketch9 = body.newObject("Sketcher::SketchObject", "Sketch008")
sketch9.AttachmentSupport = (doc.getObject("XY_Plane"), [""])
sketch9.MapMode = "FlatFace"
sketch9.AttachmentOffset = App.Placement(App.Vector(0, 0, 6), App.Rotation())
sketch9.addGeometry(Part.LineSegment(App.Vector(-67.9775, -42.30125, 0), App.Vector(-67.9775, -50.24125, 0)), False)
sketch9.addGeometry(Part.ArcOfCircle(Part.Circle(App.Vector(-65.3275, -50.24125, 0), App.Vector(0, 0, 1), 2.65), math.radians(0), math.radians(180)), False)
sketch9.addGeometry(Part.LineSegment(App.Vector(-62.6775, -50.24125, 0), App.Vector(-62.6775, -42.30125, 0)), False)
sketch9.addGeometry(Part.LineSegment(App.Vector(-62.6775, -42.30125, 0), App.Vector(-67.9775, -42.30125, 0)), False)
sketch9.addGeometry(Part.LineSegment(App.Vector(62.675, 40.48125, 0), App.Vector(62.675, 32.54375, 0)), False)
sketch9.addGeometry(Part.ArcOfCircle(Part.Circle(App.Vector(65.325, 32.54375, 0), App.Vector(0, 0, 1), 2.65), math.radians(0), math.radians(180)), False)
sketch9.addGeometry(Part.LineSegment(App.Vector(67.975, 32.54375, 0), App.Vector(67.975, 40.48125, 0)), False)
sketch9.addGeometry(Part.LineSegment(App.Vector(67.975, 40.48125, 0), App.Vector(62.675, 40.48125, 0)), False)
sketch9.addConstraint(Sketcher.Constraint("Tangent", 0, 2, 1, 2))
sketch9.addConstraint(Sketcher.Constraint("Tangent", 1, 1, 2, 1))
sketch9.addConstraint(Sketcher.Constraint("Coincident", 2, 2, 3, 1))
sketch9.addConstraint(Sketcher.Constraint("Coincident", 3, 2, 0, 1))
sketch9.addConstraint(Sketcher.Constraint("Tangent", 4, 2, 5, 2))
sketch9.addConstraint(Sketcher.Constraint("Tangent", 5, 1, 6, 1))
sketch9.addConstraint(Sketcher.Constraint("Coincident", 6, 2, 7, 1))
sketch9.addConstraint(Sketcher.Constraint("Coincident", 7, 2, 4, 1))
sketch9.addConstraint(Sketcher.Constraint("Vertical", 0))
sketch9.addConstraint(Sketcher.Constraint("Vertical", 2))
sketch9.addConstraint(Sketcher.Constraint("Horizontal", 3))
sketch9.addConstraint(Sketcher.Constraint("Vertical", 4))
sketch9.addConstraint(Sketcher.Constraint("Vertical", 6))
sketch9.addConstraint(Sketcher.Constraint("Horizontal", 7))
sketch9.addConstraint(Sketcher.Constraint("Equal", 1, 5))
sketch9.addConstraint(Sketcher.Constraint("Radius", 1, Q("2.65 mm")))
sketch9.addConstraint(Sketcher.Constraint("DistanceY", 0, 2, 0, 1, Q("7.94 mm")))
sketch9.addConstraint(Sketcher.Constraint("DistanceY", 4, 2, 4, 1, Q("7.9375 mm")))
sketch9.addConstraint(Sketcher.Constraint("DistanceX", -1, 1, 5, 3, Q("65.325 mm")))
sketch9.addConstraint(Sketcher.Constraint("DistanceY", 1, 3, 5, 3, Q("82.785 mm")))
sketch9.addConstraint(Sketcher.Constraint("DistanceX", 1, 3, -1, 1, Q("65.3275 mm")))
sketch9.addConstraint(Sketcher.Constraint("DistanceY", 1, 3, -1, 1, Q("50.24125 mm")))
sketch9.setExpression("Constraints[15]", "Params.sketch9_radius")
sketch9.setExpression("Constraints[16]", "Params.sketch9_height")
pocket1 = body.newObject("PartDesign::Pocket", "Pocket")
pocket1.Profile = sketch9
pocket1.Type = "ThroughAll"

doc.recompute()
